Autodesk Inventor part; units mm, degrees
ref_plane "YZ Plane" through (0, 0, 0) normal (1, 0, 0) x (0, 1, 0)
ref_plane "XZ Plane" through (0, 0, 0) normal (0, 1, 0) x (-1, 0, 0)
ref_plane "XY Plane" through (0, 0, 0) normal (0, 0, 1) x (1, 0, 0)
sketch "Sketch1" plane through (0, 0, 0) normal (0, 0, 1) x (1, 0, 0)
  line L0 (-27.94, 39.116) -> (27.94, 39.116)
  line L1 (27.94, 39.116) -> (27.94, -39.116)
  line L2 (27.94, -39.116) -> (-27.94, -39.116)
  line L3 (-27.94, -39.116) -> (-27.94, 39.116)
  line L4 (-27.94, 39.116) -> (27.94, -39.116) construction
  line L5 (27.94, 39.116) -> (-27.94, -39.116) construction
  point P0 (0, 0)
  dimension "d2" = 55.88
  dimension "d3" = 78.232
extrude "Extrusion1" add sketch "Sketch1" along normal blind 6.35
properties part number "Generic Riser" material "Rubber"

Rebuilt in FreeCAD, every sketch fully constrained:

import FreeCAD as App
import Part
import Sketcher
Q = App.Units.Quantity

doc = App.newDocument("Part")
body = doc.addObject("PartDesign::Body", "Body")

# Sketch on XY plane
sketch1 = body.newObject("Sketcher::SketchObject", "Sketch")
sketch1.AttachmentSupport = (doc.getObject("XY_Plane"), [""])
sketch1.MapMode = "FlatFace"
sketch1.addGeometry(Part.LineSegment(App.Vector(28, 39, 0), App.Vector(-28, 39, 0)), False)
sketch1.addGeometry(Part.LineSegment(App.Vector(-28, 39, 0), App.Vector(-28, -39, 0)), False)
sketch1.addGeometry(Part.LineSegment(App.Vector(-28, -39, 0), App.Vector(28, -39, 0)), False)
sketch1.addGeometry(Part.LineSegment(App.Vector(28, -39, 0), App.Vector(28, 39, 0)), False)
sketch1.addConstraint(Sketcher.Constraint("Coincident", 0, 2, 1, 1))
sketch1.addConstraint(Sketcher.Constraint("Coincident", 1, 2, 2, 1))
sketch1.addConstraint(Sketcher.Constraint("Coincident", 2, 2, 3, 1))
sketch1.addConstraint(Sketcher.Constraint("Coincident", 3, 2, 0, 1))
sketch1.addConstraint(Sketcher.Constraint("Horizontal", 0))
sketch1.addConstraint(Sketcher.Constraint("Vertical", 1))
sketch1.addConstraint(Sketcher.Constraint("Horizontal", 2))
sketch1.addConstraint(Sketcher.Constraint("Vertical", 3))
sketch1.addConstraint(Sketcher.Constraint("Symmetric", 0, 2, 2, 2, -1, 1))
sketch1.addConstraint(Sketcher.Constraint("DistanceX", 0, 2, 0, 1, Q("2.2 in")))
sketch1.addConstraint(Sketcher.Constraint("DistanceY", 1, 2, 1, 1, Q("3.08 in")))
pad1 = body.newObject("PartDesign::Pad", "Pad")
pad1.Profile = sketch1
pad1.Length = Q("0.25 in")

doc.recompute()
